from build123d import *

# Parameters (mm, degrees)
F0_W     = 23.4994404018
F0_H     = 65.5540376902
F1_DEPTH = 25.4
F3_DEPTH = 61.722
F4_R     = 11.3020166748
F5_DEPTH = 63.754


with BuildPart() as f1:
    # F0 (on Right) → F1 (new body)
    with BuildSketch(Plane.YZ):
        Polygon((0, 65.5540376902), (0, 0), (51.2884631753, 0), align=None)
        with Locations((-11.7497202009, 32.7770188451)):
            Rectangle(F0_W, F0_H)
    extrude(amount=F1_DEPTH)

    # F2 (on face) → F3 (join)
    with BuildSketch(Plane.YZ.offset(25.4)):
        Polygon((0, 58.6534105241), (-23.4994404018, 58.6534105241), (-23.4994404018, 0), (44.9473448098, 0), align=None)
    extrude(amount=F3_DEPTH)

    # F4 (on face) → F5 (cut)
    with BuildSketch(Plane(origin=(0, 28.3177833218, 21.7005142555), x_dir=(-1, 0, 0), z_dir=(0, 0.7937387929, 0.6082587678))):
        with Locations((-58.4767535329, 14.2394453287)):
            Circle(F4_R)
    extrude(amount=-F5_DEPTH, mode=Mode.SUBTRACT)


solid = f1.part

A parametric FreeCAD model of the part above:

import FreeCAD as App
import Part
import Sketcher
Q = App.Units.Quantity

doc = App.newDocument("Part")
body = doc.addObject("PartDesign::Body", "Body")

# Sketch on YZ plane
sketch1 = doc.addObject("Sketcher::SketchObject", "Sketch")
body.addObject(sketch1)
sketch1.AttachmentSupport = (doc.YZ_Plane, [""])
sketch1.MapMode = "FlatFace"
sketch1.addGeometry(Part.LineSegment(App.Vector(51, 0, 0), App.Vector(0, 66, 0)), False)
sketch1.addGeometry(Part.LineSegment(App.Vector(0, 66, 0), App.Vector(-23, 66, 0)), False)
sketch1.addGeometry(Part.LineSegment(App.Vector(-23, 66, 0), App.Vector(-23, 0, 0)), False)
sketch1.addGeometry(Part.LineSegment(App.Vector(-23, 0, 0), App.Vector(51, 0, 0)), False)
sketch1.addConstraint(Sketcher.Constraint("Coincident", 0, 2, 1, 1))
sketch1.addConstraint(Sketcher.Constraint("Coincident", 1, 2, 2, 1))
sketch1.addConstraint(Sketcher.Constraint("Coincident", 2, 2, 3, 1))
sketch1.addConstraint(Sketcher.Constraint("Coincident", 3, 2, 0, 1))
sketch1.addConstraint(Sketcher.Constraint("Horizontal", 1))
sketch1.addConstraint(Sketcher.Constraint("Vertical", 2))
sketch1.addConstraint(Sketcher.Constraint("Horizontal", 3))
sketch1.addConstraint(Sketcher.Constraint("PointOnObject", 0, 2, -2))
sketch1.addConstraint(Sketcher.Constraint("PointOnObject", 2, 2, -1))
sketch1.addConstraint(Sketcher.Constraint("DistanceX", 1, 2, 1, 1, 23.49944))
sketch1.addConstraint(Sketcher.Constraint("DistanceX", 3, 1, 3, 2, 74.787904))
sketch1.addConstraint(Sketcher.Constraint("DistanceY", 2, 2, 2, 1, 65.554038))
pad1 = doc.addObject("PartDesign::Pad", "Pad")
body.addObject(pad1)
pad1.Profile = sketch1
pad1.Length = Q("1 in")

# Sketch on YZ plane
sketch2 = doc.addObject("Sketcher::SketchObject", "Sketch001")
body.addObject(sketch2)
sketch2.AttachmentSupport = (doc.YZ_Plane, [""])
sketch2.MapMode = "FlatFace"
sketch2.AttachmentOffset = App.Placement(App.Vector(0, 0, 1 * 25.4), App.Rotation())
sketch2.addGeometry(Part.LineSegment(App.Vector(0, 59, 0), App.Vector(-23, 59, 0)), False)
sketch2.addGeometry(Part.LineSegment(App.Vector(-23, 59, 0), App.Vector(-23, 0, 0)), False)
sketch2.addGeometry(Part.LineSegment(App.Vector(-23, 0, 0), App.Vector(45, 0, 0)), False)
sketch2.addGeometry(Part.LineSegment(App.Vector(45, 0, 0), App.Vector(0, 59, 0)), False)
sketch2.addConstraint(Sketcher.Constraint("Coincident", 0, 2, 1, 1))
sketch2.addConstraint(Sketcher.Constraint("Coincident", 1, 2, 2, 1))
sketch2.addConstraint(Sketcher.Constraint("Coincident", 2, 2, 3, 1))
sketch2.addConstraint(Sketcher.Constraint("Coincident", 3, 2, 0, 1))
sketch2.addConstraint(Sketcher.Constraint("Horizontal", 0))
sketch2.addConstraint(Sketcher.Constraint("Vertical", 1))
sketch2.addConstraint(Sketcher.Constraint("Horizontal", 2))
sketch2.addConstraint(Sketcher.Constraint("PointOnObject", 1, 2, -1))
sketch2.addConstraint(Sketcher.Constraint("PointOnObject", 3, 2, -2))
sketch2.addConstraint(Sketcher.Constraint("DistanceX", 0, 2, 0, 1, 23.49944))
sketch2.addConstraint(Sketcher.Constraint("DistanceY", 1, 2, 1, 1, 58.653411))
sketch2.addConstraint(Sketcher.Constraint("DistanceX", 2, 1, 2, 2, 68.446785))
pad2 = doc.addObject("PartDesign::Pad", "Pad001")
body.addObject(pad2)
pad2.Profile = sketch2
pad2.Length = Q("2.43 in")

# Sketch on an angled plane
sketch3 = doc.addObject("Sketcher::SketchObject", "Sketch002")
body.addObject(sketch3)
sketch3.Placement = App.Placement(App.Vector(0, 28.317783, 21.700514), App.Rotation(App.Vector(-1, 0, 0), App.Vector(0, -0.608258768, 0.793738793), App.Vector(0, 0.793738793, 0.608258768), "ZXY"))
sketch3.addGeometry(Part.Circle(App.Vector(-58, 14, 0), App.Vector(0, 0, 1), 11), False)
sketch3.addConstraint(Sketcher.Constraint("Diameter", 0, 22.604033))
sketch3.addConstraint(Sketcher.Constraint("DistanceX", 0, 3, -1, 1, 58.476754))
sketch3.addConstraint(Sketcher.Constraint("DistanceY", -1, 1, 0, 3, 14.239445))
pocket1 = doc.addObject("PartDesign::Pocket", "Pocket")
body.addObject(pocket1)
pocket1.Profile = sketch3
pocket1.Length = Q("2.51 in")

doc.recompute()
